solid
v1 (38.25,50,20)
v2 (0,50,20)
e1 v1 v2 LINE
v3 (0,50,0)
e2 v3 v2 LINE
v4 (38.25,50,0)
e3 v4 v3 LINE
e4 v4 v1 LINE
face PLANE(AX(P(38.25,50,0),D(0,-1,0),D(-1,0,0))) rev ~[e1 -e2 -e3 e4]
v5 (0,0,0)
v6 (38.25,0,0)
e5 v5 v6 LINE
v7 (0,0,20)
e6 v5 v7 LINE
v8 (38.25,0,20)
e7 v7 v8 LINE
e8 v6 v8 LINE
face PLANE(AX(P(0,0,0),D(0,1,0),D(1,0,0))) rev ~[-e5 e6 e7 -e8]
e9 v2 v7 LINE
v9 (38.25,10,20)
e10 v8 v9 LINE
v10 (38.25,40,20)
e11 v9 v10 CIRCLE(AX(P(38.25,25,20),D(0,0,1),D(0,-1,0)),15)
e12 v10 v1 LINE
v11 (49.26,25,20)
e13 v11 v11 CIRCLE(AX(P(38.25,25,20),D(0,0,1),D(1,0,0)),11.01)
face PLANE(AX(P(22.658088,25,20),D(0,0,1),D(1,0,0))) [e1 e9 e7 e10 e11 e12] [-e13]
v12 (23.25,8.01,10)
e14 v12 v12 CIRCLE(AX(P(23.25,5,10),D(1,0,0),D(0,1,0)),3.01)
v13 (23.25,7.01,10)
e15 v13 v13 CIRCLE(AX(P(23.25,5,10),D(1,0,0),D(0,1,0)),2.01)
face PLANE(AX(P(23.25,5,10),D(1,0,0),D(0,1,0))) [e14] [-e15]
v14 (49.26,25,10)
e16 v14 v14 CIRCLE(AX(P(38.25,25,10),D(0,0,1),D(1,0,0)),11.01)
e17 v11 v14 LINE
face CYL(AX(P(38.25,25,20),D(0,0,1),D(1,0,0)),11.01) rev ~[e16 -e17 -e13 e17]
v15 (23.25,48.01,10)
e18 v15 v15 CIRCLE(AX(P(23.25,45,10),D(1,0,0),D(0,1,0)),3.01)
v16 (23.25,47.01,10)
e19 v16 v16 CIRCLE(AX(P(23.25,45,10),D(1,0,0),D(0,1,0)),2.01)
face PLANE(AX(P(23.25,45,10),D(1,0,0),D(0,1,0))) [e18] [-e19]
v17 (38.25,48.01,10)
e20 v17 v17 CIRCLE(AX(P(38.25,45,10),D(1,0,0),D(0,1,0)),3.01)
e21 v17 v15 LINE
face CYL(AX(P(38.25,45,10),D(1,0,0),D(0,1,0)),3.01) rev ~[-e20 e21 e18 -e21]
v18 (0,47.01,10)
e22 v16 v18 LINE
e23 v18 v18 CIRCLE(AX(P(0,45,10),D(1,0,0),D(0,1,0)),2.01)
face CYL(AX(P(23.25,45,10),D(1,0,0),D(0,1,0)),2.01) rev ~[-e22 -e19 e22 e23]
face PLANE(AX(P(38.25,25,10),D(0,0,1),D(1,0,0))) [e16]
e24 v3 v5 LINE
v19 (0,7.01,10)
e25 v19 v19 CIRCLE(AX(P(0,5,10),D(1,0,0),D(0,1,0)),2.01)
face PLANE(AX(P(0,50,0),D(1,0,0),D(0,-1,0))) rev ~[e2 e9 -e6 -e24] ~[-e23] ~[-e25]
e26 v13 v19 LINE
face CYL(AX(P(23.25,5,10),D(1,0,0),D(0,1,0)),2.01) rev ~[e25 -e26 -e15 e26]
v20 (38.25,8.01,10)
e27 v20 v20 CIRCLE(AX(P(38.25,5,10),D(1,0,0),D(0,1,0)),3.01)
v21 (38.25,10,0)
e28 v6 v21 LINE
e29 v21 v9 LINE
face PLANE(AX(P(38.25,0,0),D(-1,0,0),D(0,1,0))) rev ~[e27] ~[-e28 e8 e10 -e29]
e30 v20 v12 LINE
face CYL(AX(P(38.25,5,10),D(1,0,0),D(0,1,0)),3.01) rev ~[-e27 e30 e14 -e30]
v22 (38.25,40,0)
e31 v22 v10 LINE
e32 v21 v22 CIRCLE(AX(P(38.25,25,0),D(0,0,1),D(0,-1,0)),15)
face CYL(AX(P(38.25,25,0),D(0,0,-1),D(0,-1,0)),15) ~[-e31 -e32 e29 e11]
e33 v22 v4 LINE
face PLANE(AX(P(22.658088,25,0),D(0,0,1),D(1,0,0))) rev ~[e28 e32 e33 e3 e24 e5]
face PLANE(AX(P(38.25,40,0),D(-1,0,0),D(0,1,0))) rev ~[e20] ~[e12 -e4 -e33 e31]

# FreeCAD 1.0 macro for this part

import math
import FreeCAD as App
import Part
import Sketcher
Q = App.Units.Quantity

doc = App.newDocument("Part")
body = doc.addObject("PartDesign::Body", "Body")

sketch1 = body.newObject("Sketcher::SketchObject", "Sketch")
sketch1.AttachmentSupport = (doc.getObject("XY_Plane"), [""])
sketch1.MapMode = "FlatFace"
sketch1.addGeometry(Part.LineSegment(App.Vector(0, 50, 0), App.Vector(0, 0, 0)), False)
sketch1.addGeometry(Part.LineSegment(App.Vector(0, 0, 0), App.Vector(38.25, 0, 0)), False)
sketch1.addGeometry(Part.LineSegment(App.Vector(38.25, 0, 0), App.Vector(38.25, 10, 0)), False)
sketch1.addGeometry(Part.ArcOfCircle(Part.Circle(App.Vector(38.25, 25, 0), App.Vector(0, 0, 1), 15), math.radians(-90), math.radians(90)), False)
sketch1.addGeometry(Part.LineSegment(App.Vector(38.25, 40, 0), App.Vector(38.25, 50, 0)), False)
sketch1.addGeometry(Part.LineSegment(App.Vector(38.25, 50, 0), App.Vector(0, 50, 0)), False)
sketch1.addConstraint(Sketcher.Constraint("Coincident", 0, 2, 1, 1))
sketch1.addConstraint(Sketcher.Constraint("Coincident", 1, 2, 2, 1))
sketch1.addConstraint(Sketcher.Constraint("Coincident", 2, 2, 3, 1))
sketch1.addConstraint(Sketcher.Constraint("Coincident", 3, 2, 4, 1))
sketch1.addConstraint(Sketcher.Constraint("Coincident", 4, 2, 5, 1))
sketch1.addConstraint(Sketcher.Constraint("Coincident", 5, 2, 0, 1))
sketch1.addConstraint(Sketcher.Constraint("Vertical", 0))
sketch1.addConstraint(Sketcher.Constraint("Horizontal", 1))
sketch1.addConstraint(Sketcher.Constraint("Vertical", 2))
sketch1.addConstraint(Sketcher.Constraint("Vertical", 4))
sketch1.addConstraint(Sketcher.Constraint("Horizontal", 5))
sketch1.addConstraint(Sketcher.Constraint("Coincident", 0, 2, -1, 1))
sketch1.addConstraint(Sketcher.Constraint("Vertical", 3, 3, 1, 2))
sketch1.addConstraint(Sketcher.Constraint("Vertical", 2, 2, 3, 2))
sketch1.addConstraint(Sketcher.Constraint("Equal", 2, 4))
sketch1.addConstraint(Sketcher.Constraint("Radius", 3, Q("15 mm")))
sketch1.addConstraint(Sketcher.Constraint("DistanceY", 0, 2, 0, 1, Q("50 mm")))
sketch1.addConstraint(Sketcher.Constraint("DistanceX", 1, 1, 1, 2, Q("38.25 mm")))
pad1 = body.newObject("PartDesign::Pad", "Pad")
pad1.Profile = sketch1
pad1.Length = 20

sketch2 = body.newObject("Sketcher::SketchObject", "Sketch001")
sketch2.AttachmentSupport = (doc.getObject("XY_Plane"), [""])
sketch2.MapMode = "FlatFace"
sketch2.AttachmentOffset = App.Placement(App.Vector(0, 0, 20), App.Rotation())
sketch2.addGeometry(Part.Circle(App.Vector(38.25, 25, 0), App.Vector(0, 0, 1), 11.01), False)
sketch2.addConstraint(Sketcher.Constraint("Diameter", 0, Q("22.02 mm")))
sketch2.addConstraint(Sketcher.Constraint("DistanceY", -1, 1, 0, 3, Q("25 mm")))
sketch2.addConstraint(Sketcher.Constraint("DistanceX", -1, 1, 0, 3, Q("38.25 mm")))
pocket1 = body.newObject("PartDesign::Pocket", "Pocket")
pocket1.Profile = sketch2
pocket1.Length = 10

sketch3 = body.newObject("Sketcher::SketchObject", "Sketch002")
sketch3.AttachmentSupport = (doc.getObject("YZ_Plane"), [""])
sketch3.MapMode = "FlatFace"
sketch3.AttachmentOffset = App.Placement(App.Vector(0, 0, 38.25), App.Rotation())
sketch3.addGeometry(Part.Circle(App.Vector(45, 10, 0), App.Vector(0, 0, 1), 3.01), False)
sketch3.addConstraint(Sketcher.Constraint("Diameter", 0, Q("6.02 mm")))
sketch3.addConstraint(Sketcher.Constraint("DistanceX", -1, 1, 0, 3, Q("45 mm")))
sketch3.addConstraint(Sketcher.Constraint("DistanceY", -1, 1, 0, 3, Q("10 mm")))
pocket2 = body.newObject("PartDesign::Pocket", "Pocket001")
pocket2.Profile = sketch3
pocket2.Length = 15

sketch4 = body.newObject("Sketcher::SketchObject", "Sketch003")
sketch4.AttachmentSupport = (doc.getObject("YZ_Plane"), [""])
sketch4.MapMode = "FlatFace"
sketch4.AttachmentOffset = App.Placement(App.Vector(0, 0, 38.25), App.Rotation())
sketch4.addGeometry(Part.Circle(App.Vector(5, 10, 0), App.Vector(0, 0, 1), 3.01), False)
sketch4.addConstraint(Sketcher.Constraint("Diameter", 0, Q("6.02 mm")))
sketch4.addConstraint(Sketcher.Constraint("DistanceX", -1, 1, 0, 3, Q("5 mm")))
sketch4.addConstraint(Sketcher.Constraint("DistanceY", -1, 1, 0, 3, Q("10 mm")))
pocket3 = body.newObject("PartDesign::Pocket", "Pocket002")
pocket3.Profile = sketch4
pocket3.Length = 15

sketch5 = body.newObject("Sketcher::SketchObject", "Sketch004")
sketch5.AttachmentSupport = (doc.getObject("YZ_Plane"), [""])
sketch5.MapMode = "FlatFace"
sketch5.AttachmentOffset = App.Placement(App.Vector(0, 0, 23.25), App.Rotation())
sketch5.addGeometry(Part.Circle(App.Vector(5, 10, 0), App.Vector(0, 0, 1), 2.01), False)
sketch5.addConstraint(Sketcher.Constraint("Diameter", 0, Q("4.02 mm")))
sketch5.addConstraint(Sketcher.Constraint("DistanceX", -1, 1, 0, 3, Q("5 mm")))
sketch5.addConstraint(Sketcher.Constraint("DistanceY", -1, 1, 0, 3, Q("10 mm")))
pocket4 = body.newObject("PartDesign::Pocket", "Pocket003")
pocket4.Profile = sketch5
pocket4.Type = "ThroughAll"

sketch6 = body.newObject("Sketcher::SketchObject", "Sketch005")
sketch6.AttachmentSupport = (doc.getObject("YZ_Plane"), [""])
sketch6.MapMode = "FlatFace"
sketch6.AttachmentOffset = App.Placement(App.Vector(0, 0, 23.25), App.Rotation())
sketch6.addGeometry(Part.Circle(App.Vector(45, 10, 0), App.Vector(0, 0, 1), 2.01), False)
sketch6.addConstraint(Sketcher.Constraint("Diameter", 0, Q("4.02 mm")))
sketch6.addConstraint(Sketcher.Constraint("DistanceX", -1, 1, 0, 3, Q("45 mm")))
sketch6.addConstraint(Sketcher.Constraint("DistanceY", -1, 1, 0, 3, Q("10 mm")))
pocket5 = body.newObject("PartDesign::Pocket", "Pocket004")
pocket5.Profile = sketch6
pocket5.Type = "ThroughAll"

doc.recompute()
